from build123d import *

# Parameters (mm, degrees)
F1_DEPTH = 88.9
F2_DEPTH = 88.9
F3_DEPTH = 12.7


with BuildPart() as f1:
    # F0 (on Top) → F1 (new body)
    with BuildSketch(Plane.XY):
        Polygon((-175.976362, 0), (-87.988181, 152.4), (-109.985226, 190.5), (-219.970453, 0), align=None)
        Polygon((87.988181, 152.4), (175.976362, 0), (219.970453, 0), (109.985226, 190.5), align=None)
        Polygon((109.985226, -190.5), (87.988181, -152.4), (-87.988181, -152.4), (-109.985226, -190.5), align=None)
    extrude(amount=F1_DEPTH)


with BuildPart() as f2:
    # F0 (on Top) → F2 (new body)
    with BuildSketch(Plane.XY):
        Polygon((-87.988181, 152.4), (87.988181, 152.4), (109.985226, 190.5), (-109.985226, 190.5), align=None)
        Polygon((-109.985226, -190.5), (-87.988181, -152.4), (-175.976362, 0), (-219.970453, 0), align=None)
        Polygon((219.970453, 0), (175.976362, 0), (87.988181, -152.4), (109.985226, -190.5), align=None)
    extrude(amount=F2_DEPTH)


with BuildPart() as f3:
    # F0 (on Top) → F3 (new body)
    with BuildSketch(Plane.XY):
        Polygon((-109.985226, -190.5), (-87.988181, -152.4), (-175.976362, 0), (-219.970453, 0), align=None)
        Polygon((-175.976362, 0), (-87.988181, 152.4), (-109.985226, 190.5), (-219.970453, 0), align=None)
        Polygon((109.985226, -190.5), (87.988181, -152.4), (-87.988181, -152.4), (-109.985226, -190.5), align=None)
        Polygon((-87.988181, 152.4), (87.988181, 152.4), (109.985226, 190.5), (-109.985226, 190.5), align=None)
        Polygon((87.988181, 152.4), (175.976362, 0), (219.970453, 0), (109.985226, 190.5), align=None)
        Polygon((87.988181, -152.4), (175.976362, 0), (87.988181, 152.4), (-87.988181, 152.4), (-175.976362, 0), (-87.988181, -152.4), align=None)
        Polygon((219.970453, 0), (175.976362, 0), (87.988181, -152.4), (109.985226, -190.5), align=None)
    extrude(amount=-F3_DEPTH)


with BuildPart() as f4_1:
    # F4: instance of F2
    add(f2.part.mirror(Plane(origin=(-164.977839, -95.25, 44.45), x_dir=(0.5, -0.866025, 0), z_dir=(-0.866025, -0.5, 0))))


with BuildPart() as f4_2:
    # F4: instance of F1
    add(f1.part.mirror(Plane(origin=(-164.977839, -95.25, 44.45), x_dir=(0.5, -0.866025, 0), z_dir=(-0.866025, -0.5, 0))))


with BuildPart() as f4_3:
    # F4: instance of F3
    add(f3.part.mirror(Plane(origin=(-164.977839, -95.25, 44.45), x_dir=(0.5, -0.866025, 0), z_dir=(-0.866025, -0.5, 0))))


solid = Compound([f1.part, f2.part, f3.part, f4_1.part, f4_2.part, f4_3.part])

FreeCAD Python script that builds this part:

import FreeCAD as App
import Part
import Sketcher
from FreeCAD import Vector
Q = App.Units.Quantity

doc = App.newDocument("Part")
body = doc.addObject("PartDesign::Body", "Body")
body.AllowCompound = True

# Sketch on XY plane
sketch1 = body.newObject("Sketcher::SketchObject", "Sketch")
sketch1.AttachmentSupport = (doc.getObject("XY_Plane"), [""])
sketch1.MapMode = "FlatFace"
sketch1.addGeometry([
    Part.LineSegment(Vector(-175.976362, 0, 0), Vector(-87.988181, 152.4, 0)),  # 0
    Part.LineSegment(Vector(-87.988181, 152.4, 0), Vector(-109.985226, 190.5, 0)),  # 1
    Part.LineSegment(Vector(-109.985226, 190.5, 0), Vector(-219.970453, 0, 0)),  # 2
    Part.LineSegment(Vector(-219.970453, 0, 0), Vector(-175.976362, 0, 0)),  # 3
    Part.LineSegment(Vector(87.988181, 152.4, 0), Vector(175.976362, 0, 0)),  # 4
    Part.LineSegment(Vector(175.976362, 0, 0), Vector(219.970453, 0, 0)),  # 5
    Part.LineSegment(Vector(219.970453, 0, 0), Vector(109.985226, 190.5, 0)),  # 6
    Part.LineSegment(Vector(109.985226, 190.5, 0), Vector(87.988181, 152.4, 0)),  # 7
    Part.LineSegment(Vector(109.985226, -190.5, 0), Vector(87.988181, -152.4, 0)),  # 8
    Part.LineSegment(Vector(87.988181, -152.4, 0), Vector(-87.988181, -152.4, 0)),  # 9
    Part.LineSegment(Vector(-87.988181, -152.4, 0), Vector(-109.985226, -190.5, 0)),  # 10
    Part.LineSegment(Vector(-109.985226, -190.5, 0), Vector(109.985226, -190.5, 0)),  # 11
], False)
sketch1.addConstraint([
    Sketcher.Constraint("Coincident", 0, 2, 1, 1),
    Sketcher.Constraint("Coincident", 1, 2, 2, 1),
    Sketcher.Constraint("Coincident", 2, 2, 3, 1),
    Sketcher.Constraint("Coincident", 3, 2, 0, 1),
    Sketcher.Constraint("Coincident", 4, 2, 5, 1),
    Sketcher.Constraint("Coincident", 5, 2, 6, 1),
    Sketcher.Constraint("Coincident", 6, 2, 7, 1),
    Sketcher.Constraint("Coincident", 7, 2, 4, 1),
    Sketcher.Constraint("Coincident", 8, 2, 9, 1),
    Sketcher.Constraint("Coincident", 9, 2, 10, 1),
    Sketcher.Constraint("Coincident", 10, 2, 11, 1),
    Sketcher.Constraint("Coincident", 11, 2, 8, 1),
    Sketcher.Constraint("Horizontal", 3),
    Sketcher.Constraint("Horizontal", 5),
    Sketcher.Constraint("Horizontal", 9),
    Sketcher.Constraint("Horizontal", 11),
    Sketcher.Constraint("Symmetric", 3, 2, 4, 2, -1, 1),
    Sketcher.Constraint("Symmetric", 0, 2, 8, 2, -1, 1),
    Sketcher.Constraint("Symmetric", 7, 2, 9, 2, -1, 1),
    Sketcher.Constraint("Symmetric", 6, 2, 10, 2, -1, 1),
    Sketcher.Constraint("Symmetric", 1, 2, 11, 2, -1, 1),
    Sketcher.Constraint("Symmetric", 2, 2, 5, 2, -2),
    Sketcher.Constraint("Parallel", 0, 2),
    Sketcher.Constraint("Parallel", 1, 4),
    Sketcher.Constraint("Parallel", 4, 6),
    Sketcher.Constraint("Vertical", 7, 2, 8, 2),
    Sketcher.Constraint("DistanceY", -1, 1, 0, 2, Q("6 in")),
    Sketcher.Constraint("Angle", 0, Q("60 deg")),
    Sketcher.Constraint("DistanceY", -1, 1, 1, 2, Q("7.5 in")),
    Sketcher.Constraint("DistanceX", 9, 2, 9, 1, 175.976362),
])
pad1 = body.newObject("PartDesign::Pad", "Pad")
pad1.Profile = sketch1
pad1.Length = Q("3.5 in")
body2 = doc.addObject("PartDesign::Body", "Body001")
body2.AllowCompound = True

# Sketch on XY plane
sketch2 = body2.newObject("Sketcher::SketchObject", "Sketch001")
sketch2.AttachmentSupport = (doc.getObject("XY_Plane001"), [""])
sketch2.MapMode = "FlatFace"
sketch2.addGeometry([
    Part.LineSegment(Vector(-87.988181, 152.4, 0), Vector(87.988181, 152.4, 0)),  # 0
    Part.LineSegment(Vector(87.988181, 152.4, 0), Vector(109.985226, 190.5, 0)),  # 1
    Part.LineSegment(Vector(109.985226, 190.5, 0), Vector(-109.985226, 190.5, 0)),  # 2
    Part.LineSegment(Vector(-109.985226, 190.5, 0), Vector(-87.988181, 152.4, 0)),  # 3
    Part.LineSegment(Vector(-109.985226, -190.5, 0), Vector(-87.988181, -152.4, 0)),  # 4
    Part.LineSegment(Vector(-87.988181, -152.4, 0), Vector(-175.976362, 0, 0)),  # 5
    Part.LineSegment(Vector(-175.976362, 0, 0), Vector(-219.970453, 0, 0)),  # 6
    Part.LineSegment(Vector(-219.970453, 0, 0), Vector(-109.985226, -190.5, 0)),  # 7
    Part.LineSegment(Vector(219.970453, 0, 0), Vector(175.976362, 0, 0)),  # 8
    Part.LineSegment(Vector(175.976362, 0, 0), Vector(87.988181, -152.4, 0)),  # 9
    Part.LineSegment(Vector(87.988181, -152.4, 0), Vector(109.985226, -190.5, 0)),  # 10
    Part.LineSegment(Vector(109.985226, -190.5, 0), Vector(219.970453, 0, 0)),  # 11
], False)
sketch2.addConstraint([
    Sketcher.Constraint("Coincident", 0, 2, 1, 1),
    Sketcher.Constraint("Coincident", 1, 2, 2, 1),
    Sketcher.Constraint("Coincident", 2, 2, 3, 1),
    Sketcher.Constraint("Coincident", 3, 2, 0, 1),
    Sketcher.Constraint("Coincident", 4, 2, 5, 1),
    Sketcher.Constraint("Coincident", 5, 2, 6, 1),
    Sketcher.Constraint("Coincident", 6, 2, 7, 1),
    Sketcher.Constraint("Coincident", 7, 2, 4, 1),
    Sketcher.Constraint("Coincident", 8, 2, 9, 1),
    Sketcher.Constraint("Coincident", 9, 2, 10, 1),
    Sketcher.Constraint("Coincident", 10, 2, 11, 1),
    Sketcher.Constraint("Coincident", 11, 2, 8, 1),
    Sketcher.Constraint("Horizontal", 0),
    Sketcher.Constraint("Horizontal", 2),
    Sketcher.Constraint("Horizontal", 6),
    Sketcher.Constraint("Horizontal", 8),
    Sketcher.Constraint("Symmetric", 0, 2, 4, 2, -1, 1),
    Sketcher.Constraint("Symmetric", 1, 2, 7, 2, -1, 1),
    Sketcher.Constraint("Symmetric", 5, 2, 8, 2, -1, 1),
    Sketcher.Constraint("Symmetric", 3, 2, 9, 2, -1, 1),
    Sketcher.Constraint("Symmetric", 2, 2, 10, 2, -1, 1),
    Sketcher.Constraint("Symmetric", 6, 2, 11, 2, -2),
    Sketcher.Constraint("Parallel", 3, 5),
    Sketcher.Constraint("Parallel", 5, 7),
    Sketcher.Constraint("Parallel", 4, 9),
    Sketcher.Constraint("Vertical", 3, 2, 4, 2),
    Sketcher.Constraint("DistanceY", -1, 1, 0, 2, Q("6 in")),
    Sketcher.Constraint("Angle", 1, Q("60 deg")),
    Sketcher.Constraint("DistanceY", 7, 2, 2, 2, Q("15 in")),
    Sketcher.Constraint("DistanceX", 0, 1, 0, 2, 175.976362),
])
pad2 = body2.newObject("PartDesign::Pad", "Pad001")
pad2.Profile = sketch2
pad2.Length = Q("3.5 in")
body3 = doc.addObject("PartDesign::Body", "Body002")

# Sketch on XY plane
sketch3 = body3.newObject("Sketcher::SketchObject", "Sketch002")
sketch3.AttachmentSupport = (doc.getObject("XY_Plane002"), [""])
sketch3.MapMode = "FlatFace"
sketch3.addGeometry([
    Part.LineSegment(Vector(219.970453, 0, 0), Vector(109.985226, 190.5, 0)),  # 0
    Part.LineSegment(Vector(109.985226, 190.5, 0), Vector(-109.985226, 190.5, 0)),  # 1
    Part.LineSegment(Vector(-109.985226, 190.5, 0), Vector(-219.970453, 0, 0)),  # 2
    Part.LineSegment(Vector(-219.970453, 0, 0), Vector(-109.985226, -190.5, 0)),  # 3
    Part.LineSegment(Vector(-109.985226, -190.5, 0), Vector(109.985226, -190.5, 0)),  # 4
    Part.LineSegment(Vector(109.985226, -190.5, 0), Vector(219.970453, 0, 0)),  # 5
], False)
sketch3.addConstraint([
    Sketcher.Constraint("Coincident", 0, 2, 1, 1),
    Sketcher.Constraint("Coincident", 1, 2, 2, 1),
    Sketcher.Constraint("Coincident", 2, 2, 3, 1),
    Sketcher.Constraint("Coincident", 3, 2, 4, 1),
    Sketcher.Constraint("Coincident", 4, 2, 5, 1),
    Sketcher.Constraint("Coincident", 5, 2, 0, 1),
    Sketcher.Constraint("Horizontal", 1),
    Sketcher.Constraint("Horizontal", 4),
    Sketcher.Constraint("Symmetric", 0, 2, 3, 2, -1, 1),
    Sketcher.Constraint("Symmetric", 2, 2, 5, 2, -1, 1),
    Sketcher.Constraint("PointOnObject", 2, 2, -1),
    Sketcher.Constraint("Parallel", 2, 5),
    Sketcher.Constraint("Vertical", 1, 2, 3, 2),
    Sketcher.Constraint("Angle", 0, Q("120 deg")),
    Sketcher.Constraint("DistanceY", 3, 2, 1, 2, Q("15 in")),
    Sketcher.Constraint("DistanceX", 1, 2, 1, 1, 219.970452),
])
pad3 = body3.newObject("PartDesign::Pad", "Pad002")
pad3.Profile = sketch3
pad3.Length = Q("0.5 in")
pad3.Reversed = True
body4 = doc.addObject("PartDesign::Body", "Body003")
body4.AllowCompound = True
doc.recompute()

mirroring = doc.addObject("Part::Mirroring", "Mirroring")
mirroring.Source = body2
mirroring.Base = Vector(-164.977839, -95.25, 44.45)
mirroring.Normal = Vector(-0.866025303, -0.500000175, 0)
body4.BaseFeature = mirroring
doc.recompute()
body5 = doc.addObject("PartDesign::Body", "Body004")
body5.AllowCompound = True
doc.recompute()

mirroring2 = doc.addObject("Part::Mirroring", "Mirroring001")
mirroring2.Source = body
mirroring2.Base = Vector(-164.977839, -95.25, 44.45)
mirroring2.Normal = Vector(-0.866025303, -0.500000175, 0)
body5.BaseFeature = mirroring2
doc.recompute()
body6 = doc.addObject("PartDesign::Body", "Body005")
doc.recompute()

mirroring3 = doc.addObject("Part::Mirroring", "Mirroring002")
mirroring3.Source = body3
mirroring3.Base = Vector(-164.977839, -95.25, 44.45)
mirroring3.Normal = Vector(-0.866025303, -0.500000175, 0)
body6.BaseFeature = mirroring3
doc.recompute()
mirroring.Visibility = False
mirroring2.Visibility = False
mirroring3.Visibility = False

doc.recompute()
